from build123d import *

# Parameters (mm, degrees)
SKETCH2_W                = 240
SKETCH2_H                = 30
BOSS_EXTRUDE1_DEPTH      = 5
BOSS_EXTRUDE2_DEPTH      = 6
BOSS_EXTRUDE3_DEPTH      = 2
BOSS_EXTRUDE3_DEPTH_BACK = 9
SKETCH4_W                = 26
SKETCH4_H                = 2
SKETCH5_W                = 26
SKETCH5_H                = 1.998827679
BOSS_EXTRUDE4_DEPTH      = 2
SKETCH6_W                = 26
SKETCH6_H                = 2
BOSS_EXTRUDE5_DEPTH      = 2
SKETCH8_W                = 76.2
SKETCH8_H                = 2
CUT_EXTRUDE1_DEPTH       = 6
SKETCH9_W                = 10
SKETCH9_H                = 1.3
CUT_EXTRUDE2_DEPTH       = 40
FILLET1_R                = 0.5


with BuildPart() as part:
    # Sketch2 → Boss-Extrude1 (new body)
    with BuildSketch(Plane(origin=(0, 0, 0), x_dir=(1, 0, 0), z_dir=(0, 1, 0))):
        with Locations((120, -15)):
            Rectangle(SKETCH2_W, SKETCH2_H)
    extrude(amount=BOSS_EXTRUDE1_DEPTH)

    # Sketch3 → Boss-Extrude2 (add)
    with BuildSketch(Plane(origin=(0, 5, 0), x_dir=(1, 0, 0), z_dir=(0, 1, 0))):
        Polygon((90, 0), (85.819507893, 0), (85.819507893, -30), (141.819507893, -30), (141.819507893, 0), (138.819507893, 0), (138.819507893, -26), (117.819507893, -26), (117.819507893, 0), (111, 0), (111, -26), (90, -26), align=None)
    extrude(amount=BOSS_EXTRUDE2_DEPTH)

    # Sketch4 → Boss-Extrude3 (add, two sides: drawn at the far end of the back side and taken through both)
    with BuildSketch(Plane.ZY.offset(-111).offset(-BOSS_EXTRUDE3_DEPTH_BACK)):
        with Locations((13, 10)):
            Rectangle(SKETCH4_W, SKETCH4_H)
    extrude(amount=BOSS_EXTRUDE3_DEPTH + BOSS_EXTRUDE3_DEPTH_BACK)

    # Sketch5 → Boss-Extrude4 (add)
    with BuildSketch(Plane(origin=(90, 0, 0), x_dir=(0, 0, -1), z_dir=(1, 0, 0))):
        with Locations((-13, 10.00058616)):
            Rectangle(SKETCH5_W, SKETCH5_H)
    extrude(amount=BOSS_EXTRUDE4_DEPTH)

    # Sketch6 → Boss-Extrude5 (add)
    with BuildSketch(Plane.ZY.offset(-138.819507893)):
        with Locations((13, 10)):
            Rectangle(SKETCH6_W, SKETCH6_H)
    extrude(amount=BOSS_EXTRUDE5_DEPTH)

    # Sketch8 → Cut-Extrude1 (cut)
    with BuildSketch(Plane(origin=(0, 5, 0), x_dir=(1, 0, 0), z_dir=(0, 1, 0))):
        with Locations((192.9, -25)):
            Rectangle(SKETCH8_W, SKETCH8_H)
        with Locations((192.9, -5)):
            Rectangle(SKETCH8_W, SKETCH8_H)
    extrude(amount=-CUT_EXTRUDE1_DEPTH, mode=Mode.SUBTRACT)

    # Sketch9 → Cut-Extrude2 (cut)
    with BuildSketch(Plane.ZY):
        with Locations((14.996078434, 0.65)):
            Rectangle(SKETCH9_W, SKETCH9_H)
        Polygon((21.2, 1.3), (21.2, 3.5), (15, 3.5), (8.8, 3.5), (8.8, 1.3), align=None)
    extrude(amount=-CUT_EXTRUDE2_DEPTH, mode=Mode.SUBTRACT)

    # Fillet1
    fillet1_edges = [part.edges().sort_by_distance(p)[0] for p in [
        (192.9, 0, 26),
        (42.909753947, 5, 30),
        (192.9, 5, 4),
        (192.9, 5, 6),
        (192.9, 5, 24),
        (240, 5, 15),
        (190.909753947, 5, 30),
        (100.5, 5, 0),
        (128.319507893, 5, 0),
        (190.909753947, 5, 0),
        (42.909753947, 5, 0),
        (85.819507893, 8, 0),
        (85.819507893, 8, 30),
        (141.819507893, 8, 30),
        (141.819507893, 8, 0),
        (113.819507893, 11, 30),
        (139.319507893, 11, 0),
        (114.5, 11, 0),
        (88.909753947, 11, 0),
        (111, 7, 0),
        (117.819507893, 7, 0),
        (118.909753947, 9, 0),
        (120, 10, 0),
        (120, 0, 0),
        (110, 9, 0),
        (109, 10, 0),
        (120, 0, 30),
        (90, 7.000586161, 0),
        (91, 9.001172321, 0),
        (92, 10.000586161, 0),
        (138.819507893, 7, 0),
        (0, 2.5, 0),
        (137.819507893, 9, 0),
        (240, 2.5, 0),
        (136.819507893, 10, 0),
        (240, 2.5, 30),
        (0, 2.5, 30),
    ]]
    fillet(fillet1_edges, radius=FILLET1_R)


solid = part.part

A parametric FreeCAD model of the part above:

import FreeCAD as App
import Part
import Sketcher
from FreeCAD import Vector
Q = App.Units.Quantity


def edges_at(feature, points):
    """Names of the edges that pass closest to the given points."""
    edges = feature.Shape.Edges
    near = lambda p: min(range(len(edges)), key=lambda i: edges[i].distToShape(Part.Vertex(*p))[0])
    return sorted({f"Edge{near(p) + 1}" for p in points})


def add_polygon(sketch, points):
    """Adds a closed chain of lines whose ends are joined by coincident constraints."""
    first, n = sketch.GeometryCount, len(points)
    for a, b in zip(points, points[1:] + points[:1]):
        sketch.addGeometry(Part.LineSegment(App.Vector(*a, 0), App.Vector(*b, 0)), False)
    for i in range(n):
        sketch.addConstraint(Sketcher.Constraint("Coincident", first + i, 2, first + (i + 1) % n, 1))

doc = App.newDocument("Part")
body = doc.addObject("PartDesign::Body", "Body")

# Sketch on XZ plane
sketch1 = doc.addObject("Sketcher::SketchObject", "Sketch")
body.addObject(sketch1)
sketch1.AttachmentSupport = (doc.XZ_Plane, [""])
sketch1.MapMode = "FlatFace"
add_polygon(sketch1, [(0, 0), (0, 30), (240, 30), (240, 0)])  # lines 0-3
sketch1.addConstraint([
    Sketcher.Constraint("Vertical", 0),
    Sketcher.Constraint("Horizontal", 1),
    Sketcher.Constraint("Vertical", 2),
    Sketcher.Constraint("Horizontal", 3),
    Sketcher.Constraint("Coincident", 3, 2, -1, 1),
    Sketcher.Constraint("DistanceX", 1, 1, 1, 2, Q("240 mm")),
    Sketcher.Constraint("DistanceY", 0, 1, 0, 2, Q("30 mm")),
])
pad1 = doc.addObject("PartDesign::Pad", "Pad")
body.addObject(pad1)
pad1.Profile = sketch1
pad1.Length = 5
pad1.Reversed = True

# Sketch on XZ plane
sketch2 = doc.addObject("Sketcher::SketchObject", "Sketch001")
body.addObject(sketch2)
sketch2.AttachmentSupport = (doc.XZ_Plane, [""])
sketch2.MapMode = "FlatFace"
sketch2.AttachmentOffset = App.Placement(Vector(0, 0, -5), App.Rotation())
add_polygon(sketch2, [(90, 0), (85.8, 0), (85.8, 30), (141.8, 30), (141.8, 0), (138.8, 0), (138.8, 26), (117.8, 26), (117.8, 0), (111, 0), (111, 26), (90, 26)])  # lines 0-11
sketch2.addConstraint([
    Sketcher.Constraint("Horizontal", 0),
    Sketcher.Constraint("Vertical", 1),
    Sketcher.Constraint("Horizontal", 2),
    Sketcher.Constraint("Vertical", 3),
    Sketcher.Constraint("Horizontal", 4),
    Sketcher.Constraint("Vertical", 5),
    Sketcher.Constraint("Horizontal", 6),
    Sketcher.Constraint("Vertical", 7),
    Sketcher.Constraint("Horizontal", 8),
    Sketcher.Constraint("Vertical", 9),
    Sketcher.Constraint("Horizontal", 10),
    Sketcher.Constraint("Vertical", 11),
    Sketcher.Constraint("PointOnObject", 0, 2, -1),
    Sketcher.Constraint("PointOnObject", 3, 2, -1),
    Sketcher.Constraint("PointOnObject", 7, 2, -1),
    Sketcher.Constraint("Horizontal", 6, 2, 9, 2),
    Sketcher.Constraint("Equal", 6, 10),
    Sketcher.Constraint("DistanceX", 2, 1, 2, 2, Q("56 mm")),
    Sketcher.Constraint("DistanceX", 4, 2, 4, 1, Q("3 mm")),
    Sketcher.Constraint("DistanceX", 6, 2, 6, 1, Q("21 mm")),
    Sketcher.Constraint("DistanceY", 1, 1, 1, 2, Q("30 mm")),
    Sketcher.Constraint("DistanceY", 5, 1, 5, 2, Q("26 mm")),
    Sketcher.Constraint("DistanceX", -1, 1, 8, 2, Q("111 mm")),
    Sketcher.Constraint("DistanceX", 0, 2, 0, 1, Q("4.180492 mm")),
])
pad2 = doc.addObject("PartDesign::Pad", "Pad001")
body.addObject(pad2)
pad2.Profile = sketch2
pad2.Length = 6
pad2.Reversed = True

# Sketch on YZ plane
sketch3 = doc.addObject("Sketcher::SketchObject", "Sketch002")
body.addObject(sketch3)
sketch3.AttachmentSupport = (doc.YZ_Plane, [""])
sketch3.MapMode = "FlatFace"
sketch3.AttachmentOffset = App.Placement(Vector(0, 0, 111), App.Rotation())
add_polygon(sketch3, [(11, 0), (9, 0), (9, 26), (11, 26)])  # lines 0-3
sketch3.addConstraint([
    Sketcher.Constraint("Horizontal", 0),
    Sketcher.Constraint("Vertical", 1),
    Sketcher.Constraint("Horizontal", 2),
    Sketcher.Constraint("Vertical", 3),
    Sketcher.Constraint("PointOnObject", 0, 2, -1),
    Sketcher.Constraint("DistanceX", 0, 2, 0, 1, Q("2 mm")),
    Sketcher.Constraint("DistanceY", 1, 1, 1, 2, Q("26 mm")),
    Sketcher.Constraint("DistanceX", -1, 1, 0, 2, Q("9 mm")),
])
pad3 = doc.addObject("PartDesign::Pad", "Pad002")
body.addObject(pad3)
pad3.Profile = sketch3
pad3.Type = "TwoLengths"
pad3.Length = 2
pad3.Length2 = 9
pad3.Reversed = True

# Sketch on YZ plane
sketch4 = doc.addObject("Sketcher::SketchObject", "Sketch003")
body.addObject(sketch4)
sketch4.AttachmentSupport = (doc.YZ_Plane, [""])
sketch4.MapMode = "FlatFace"
sketch4.AttachmentOffset = App.Placement(Vector(0, 0, 90), App.Rotation())
add_polygon(sketch4, [(11, 26), (9, 26), (9, 0), (11, 0)])  # lines 0-3
sketch4.addConstraint([
    Sketcher.Constraint("Horizontal", 0),
    Sketcher.Constraint("Vertical", 1),
    Sketcher.Constraint("Horizontal", 2),
    Sketcher.Constraint("Vertical", 3),
    Sketcher.Constraint("PointOnObject", 1, 2, -1),
    Sketcher.Constraint("DistanceY", 1, 2, 1, 1, Q("26 mm")),
    Sketcher.Constraint("DistanceX", -1, 1, 2, 2, Q("11 mm")),
    Sketcher.Constraint("DistanceX", 0, 2, 0, 1, Q("1.998828 mm")),
])
pad4 = doc.addObject("PartDesign::Pad", "Pad003")
body.addObject(pad4)
pad4.Profile = sketch4
pad4.Length = 2

# Sketch on YZ plane
sketch5 = doc.addObject("Sketcher::SketchObject", "Sketch004")
body.addObject(sketch5)
sketch5.AttachmentSupport = (doc.YZ_Plane, [""])
sketch5.MapMode = "FlatFace"
sketch5.AttachmentOffset = App.Placement(Vector(0, 0, 138.819508), App.Rotation())
add_polygon(sketch5, [(11, 0), (9, 0), (9, 26), (11, 26)])  # lines 0-3
sketch5.addConstraint([
    Sketcher.Constraint("Horizontal", 0),
    Sketcher.Constraint("Vertical", 1),
    Sketcher.Constraint("Horizontal", 2),
    Sketcher.Constraint("Vertical", 3),
    Sketcher.Constraint("PointOnObject", 0, 2, -1),
    Sketcher.Constraint("DistanceX", 0, 2, 0, 1, Q("2 mm")),
    Sketcher.Constraint("DistanceY", 1, 1, 1, 2, Q("26 mm")),
    Sketcher.Constraint("DistanceX", -1, 1, 0, 2, Q("9 mm")),
])
pad5 = doc.addObject("PartDesign::Pad", "Pad004")
body.addObject(pad5)
pad5.Profile = sketch5
pad5.Length = 2
pad5.Reversed = True

# Sketch on XZ plane
sketch6 = doc.addObject("Sketcher::SketchObject", "Sketch005")
body.addObject(sketch6)
sketch6.AttachmentSupport = (doc.XZ_Plane, [""])
sketch6.MapMode = "FlatFace"
sketch6.AttachmentOffset = App.Placement(Vector(0, 0, -5), App.Rotation())
add_polygon(sketch6, [(154.8, 24), (154.8, 26), (231, 26), (231, 24)])  # lines 0-3
add_polygon(sketch6, [(154.8, 4), (154.8, 6), (231, 6), (231, 4)])  # lines 4-7
sketch6.addConstraint([
    Sketcher.Constraint("Vertical", 0),
    Sketcher.Constraint("Horizontal", 1),
    Sketcher.Constraint("Vertical", 2),
    Sketcher.Constraint("Horizontal", 3),
    Sketcher.Constraint("Vertical", 4),
    Sketcher.Constraint("Horizontal", 5),
    Sketcher.Constraint("Vertical", 6),
    Sketcher.Constraint("Horizontal", 7),
    Sketcher.Constraint("Vertical", 3, 2, 4, 2),
    Sketcher.Constraint("Vertical", 2, 2, 5, 2),
    Sketcher.Constraint("Equal", 2, 4),
    Sketcher.Constraint("DistanceY", 0, 1, 0, 2, Q("2 mm")),
    Sketcher.Constraint("DistanceX", 1, 1, 1, 2, Q("76.2 mm")),
    Sketcher.Constraint("DistanceY", -1, 1, 0, 2, Q("26 mm")),
    Sketcher.Constraint("DistanceX", -1, 1, 1, 2, Q("231 mm")),
    Sketcher.Constraint("DistanceY", -1, 1, 4, 2, Q("6 mm")),
])
pocket1 = doc.addObject("PartDesign::Pocket", "Pocket")
body.addObject(pocket1)
pocket1.Profile = sketch6
pocket1.Length = 6
pocket1.Reversed = True

# Sketch on YZ plane
sketch7 = doc.addObject("Sketcher::SketchObject", "Sketch006")
body.addObject(sketch7)
sketch7.AttachmentSupport = (doc.YZ_Plane, [""])
sketch7.MapMode = "FlatFace"
add_polygon(sketch7, [(1.3, 10), (0, 10), (0, 20), (1.3, 20), (1.3, 21.2), (3.5, 21.2), (3.5, 8.8), (1.3, 8.8)])  # lines 0-7
sketch7.addConstraint([
    Sketcher.Constraint("Horizontal", 0),
    Sketcher.Constraint("Vertical", 1),
    Sketcher.Constraint("Horizontal", 2),
    Sketcher.Constraint("Vertical", 3),
    Sketcher.Constraint("Horizontal", 4),
    Sketcher.Constraint("Vertical", 5),
    Sketcher.Constraint("Horizontal", 6),
    Sketcher.Constraint("Vertical", 7),
    Sketcher.Constraint("PointOnObject", 0, 2, -2),
    Sketcher.Constraint("Vertical", 3, 2, 6, 2),
    Sketcher.Constraint("DistanceY", 1, 1, 1, 2, Q("10 mm")),
    Sketcher.Constraint("DistanceX", 0, 2, 0, 1, Q("1.3 mm")),
    Sketcher.Constraint("DistanceX", 4, 1, 4, 2, Q("2.2 mm")),
    Sketcher.Constraint("DistanceY", 5, 2, 5, 1, Q("12.4 mm")),
    Sketcher.Constraint("DistanceY", -1, 1, 3, 2, Q("21.2 mm")),
    Sketcher.Constraint("DistanceY", 3, 1, 3, 2, Q("1.203922 mm")),
])
pocket2 = doc.addObject("PartDesign::Pocket", "Pocket001")
body.addObject(pocket2)
pocket2.Profile = sketch7
pocket2.Length = 40
pocket2.Reversed = True
doc.recompute()

fillet = doc.addObject("PartDesign::Fillet", "Fillet")
body.addObject(fillet)
fillet.Base = (pocket2, edges_at(pocket2, [
    (192.9, 0, 26),
    (42.91, 5, 30),
    (192.9, 5, 4),
    (192.9, 5, 6),
    (192.9, 5, 24),
    (240, 5, 15),
    (190.91, 5, 30),
    (100.5, 5, 0),
    (128.32, 5, 0),
    (190.91, 5, 0),
    (42.91, 5, 0),
    (85.82, 8, 0),
    (85.82, 8, 30),
    (141.82, 8, 30),
    (141.82, 8, 0),
    (113.82, 11, 30),
    (139.32, 11, 0),
    (114.5, 11, 0),
    (87.91, 11, 0),
    (111, 7, 0),
    (117.82, 7, 0),
    (118.91, 9, 0),
    (120, 10, 0),
    (120, 0, 0),
    (110, 9, 0),
    (109, 10, 0),
    (120, 0, 30),
    (90, 7.001, 0),
    (91, 9.001, 0),
    (92, 10.001, 0),
    (138.82, 7, 0),
    (0, 2.5, 0),
    (137.82, 9, 0),
    (240, 2.5, 0),
    (136.82, 10, 0),
    (240, 2.5, 30),
    (0, 2.5, 30),
]))
fillet.Radius = 0.5

doc.recompute()
